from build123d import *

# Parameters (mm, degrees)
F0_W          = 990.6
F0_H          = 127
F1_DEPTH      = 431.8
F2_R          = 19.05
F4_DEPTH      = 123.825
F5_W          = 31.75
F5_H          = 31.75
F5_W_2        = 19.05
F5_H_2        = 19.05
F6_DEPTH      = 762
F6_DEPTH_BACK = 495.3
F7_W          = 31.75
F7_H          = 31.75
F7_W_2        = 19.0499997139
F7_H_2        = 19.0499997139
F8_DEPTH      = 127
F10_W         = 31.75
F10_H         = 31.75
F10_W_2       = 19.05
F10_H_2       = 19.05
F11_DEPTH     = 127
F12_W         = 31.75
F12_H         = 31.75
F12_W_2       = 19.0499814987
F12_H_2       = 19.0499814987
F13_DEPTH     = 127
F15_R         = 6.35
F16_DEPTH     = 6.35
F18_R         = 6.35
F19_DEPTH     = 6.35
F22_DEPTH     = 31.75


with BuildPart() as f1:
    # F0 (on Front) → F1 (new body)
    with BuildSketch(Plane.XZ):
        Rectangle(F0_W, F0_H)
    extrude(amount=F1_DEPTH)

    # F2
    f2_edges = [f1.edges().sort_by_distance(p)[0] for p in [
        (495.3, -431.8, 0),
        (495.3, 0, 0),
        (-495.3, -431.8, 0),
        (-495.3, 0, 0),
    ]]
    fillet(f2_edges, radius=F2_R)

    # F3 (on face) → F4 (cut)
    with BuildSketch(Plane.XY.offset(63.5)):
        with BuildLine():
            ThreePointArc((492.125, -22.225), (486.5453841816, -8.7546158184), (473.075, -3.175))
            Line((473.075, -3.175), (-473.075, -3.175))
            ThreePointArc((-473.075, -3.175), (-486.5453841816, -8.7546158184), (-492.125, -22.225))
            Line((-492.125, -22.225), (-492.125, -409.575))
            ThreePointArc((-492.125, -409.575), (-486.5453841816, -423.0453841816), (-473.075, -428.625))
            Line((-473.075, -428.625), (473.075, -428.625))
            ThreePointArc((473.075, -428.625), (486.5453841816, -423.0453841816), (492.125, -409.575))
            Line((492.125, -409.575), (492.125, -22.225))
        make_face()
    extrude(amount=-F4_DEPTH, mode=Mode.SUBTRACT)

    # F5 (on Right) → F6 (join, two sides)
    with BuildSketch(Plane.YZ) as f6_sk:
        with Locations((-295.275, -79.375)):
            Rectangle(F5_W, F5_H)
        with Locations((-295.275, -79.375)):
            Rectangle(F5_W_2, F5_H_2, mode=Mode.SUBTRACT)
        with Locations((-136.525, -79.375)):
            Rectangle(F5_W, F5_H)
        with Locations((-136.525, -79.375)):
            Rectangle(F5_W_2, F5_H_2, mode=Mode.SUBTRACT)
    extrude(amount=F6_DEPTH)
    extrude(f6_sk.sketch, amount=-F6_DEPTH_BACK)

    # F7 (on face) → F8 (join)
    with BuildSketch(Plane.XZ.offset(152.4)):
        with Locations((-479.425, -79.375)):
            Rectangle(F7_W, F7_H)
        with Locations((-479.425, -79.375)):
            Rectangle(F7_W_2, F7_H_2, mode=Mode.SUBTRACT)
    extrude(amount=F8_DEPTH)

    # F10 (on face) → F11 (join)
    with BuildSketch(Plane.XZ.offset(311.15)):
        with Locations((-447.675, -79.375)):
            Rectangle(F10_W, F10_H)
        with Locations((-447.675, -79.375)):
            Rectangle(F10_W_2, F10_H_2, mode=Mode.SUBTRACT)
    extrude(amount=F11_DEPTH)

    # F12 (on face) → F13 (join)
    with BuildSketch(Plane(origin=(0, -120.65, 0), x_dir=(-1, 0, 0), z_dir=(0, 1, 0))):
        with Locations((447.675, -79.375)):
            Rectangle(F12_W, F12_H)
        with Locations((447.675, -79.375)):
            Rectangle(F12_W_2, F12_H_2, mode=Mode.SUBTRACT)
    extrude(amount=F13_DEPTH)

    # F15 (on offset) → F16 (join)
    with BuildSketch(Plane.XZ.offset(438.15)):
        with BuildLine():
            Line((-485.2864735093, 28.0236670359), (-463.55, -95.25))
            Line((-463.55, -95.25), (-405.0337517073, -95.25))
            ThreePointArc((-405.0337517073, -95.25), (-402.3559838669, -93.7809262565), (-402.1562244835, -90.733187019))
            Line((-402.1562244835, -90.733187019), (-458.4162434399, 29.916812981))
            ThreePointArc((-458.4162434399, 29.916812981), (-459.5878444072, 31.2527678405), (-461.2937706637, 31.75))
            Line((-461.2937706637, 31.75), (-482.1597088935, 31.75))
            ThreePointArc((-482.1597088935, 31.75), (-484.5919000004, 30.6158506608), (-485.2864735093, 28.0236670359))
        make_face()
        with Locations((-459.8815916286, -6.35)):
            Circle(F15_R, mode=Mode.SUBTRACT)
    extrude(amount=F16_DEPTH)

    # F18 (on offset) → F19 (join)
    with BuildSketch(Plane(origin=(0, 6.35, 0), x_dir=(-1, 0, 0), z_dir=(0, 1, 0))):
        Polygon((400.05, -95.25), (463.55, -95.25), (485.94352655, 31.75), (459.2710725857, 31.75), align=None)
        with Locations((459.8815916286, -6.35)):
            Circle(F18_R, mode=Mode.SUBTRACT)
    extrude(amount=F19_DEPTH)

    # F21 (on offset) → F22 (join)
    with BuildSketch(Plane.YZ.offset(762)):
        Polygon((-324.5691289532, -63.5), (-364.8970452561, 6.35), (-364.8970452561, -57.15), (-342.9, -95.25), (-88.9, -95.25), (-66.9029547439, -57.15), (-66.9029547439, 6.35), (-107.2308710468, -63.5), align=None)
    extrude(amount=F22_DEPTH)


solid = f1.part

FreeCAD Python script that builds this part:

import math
import FreeCAD as App
import Part
import Sketcher

V = App.Vector
Q = App.Units.Quantity


def edges_at(feature, points):
    """Names of the edges that pass closest to the given points."""
    edges = feature.Shape.Edges
    near = lambda p: min(range(len(edges)), key=lambda i: edges[i].distToShape(Part.Vertex(*p))[0])
    return sorted({f"Edge{near(p) + 1}" for p in points})

doc = App.newDocument("Part")
params = doc.addObject("Spreadsheet::Sheet", "Params")
for row, (alias, value) in enumerate([
    ("sketch1_width", "39 in"),
    ("sketch1_height", "5 in"),
    ("pad1_length", "17 in"),
    ("fillet_radius", "0.75 in"),
    ("sketch2_radius", "0.75 in"),
    ("pocket1_length", "4.875 in"),
    ("sketch3_width", "1.25 in"),
    ("pad2_length", "30 in"),
    ("pad2_length2", "19.5 in"),
    ("sketch4_width", "1.25 in"),
    ("pad3_length", "5 in"),
    ("sketch5_width", "1.25 in"),
    ("pad4_length", "5 in"),
    ("sketch6_width", "1.25 in"),
    ("pad5_length", "5 in"),
    ("sketch7_diameter", "0.5 in"),
    ("sketch7_radius", "0.125 in"),
    ("pad6_length", "0.25 in"),
    ("sketch8_diameter", "0.5 in"),
    ("sketch8_width", "2.5 in"),
    ("pad7_length", "0.25 in"),
    ("sketch9_width", "10 in"),
    ("sketch9_height", "2.5 in"),
    ("pad8_length", "1.25 in"),
], start=1):
    params.set(f"A{row}", alias)
    params.set(f"B{row}", "=" + value)
    params.setAlias(f"B{row}", alias)

body = doc.addObject("PartDesign::Body", "Body")

sketch1 = body.newObject("Sketcher::SketchObject", "Sketch")
sketch1.AttachmentSupport = (doc.getObject("XZ_Plane"), [""])
sketch1.MapMode = "FlatFace"
sketch1.addGeometry([
    Part.LineSegment(V(-495, 64, 0), V(-495, -64, 0)),
    Part.LineSegment(V(-495, -64, 0), V(495, -64, 0)),
    Part.LineSegment(V(495, -64, 0), V(495, 64, 0)),
    Part.LineSegment(V(495, 64, 0), V(-495, 64, 0)),
], False)
sketch1.addConstraint([
    Sketcher.Constraint("Coincident", 0, 2, 1, 1),
    Sketcher.Constraint("Coincident", 1, 2, 2, 1),
    Sketcher.Constraint("Coincident", 2, 2, 3, 1),
    Sketcher.Constraint("Coincident", 3, 2, 0, 1),
    Sketcher.Constraint("Vertical", 0),
    Sketcher.Constraint("Horizontal", 1),
    Sketcher.Constraint("Vertical", 2),
    Sketcher.Constraint("Horizontal", 3),
    Sketcher.Constraint("Symmetric", 0, 2, 2, 2, -1, 1),
    Sketcher.Constraint("DistanceX", 1, 1, 1, 2, Q("39 in")),
    Sketcher.Constraint("DistanceY", 0, 2, 0, 1, Q("5 in")),
])
sketch1.setExpression("Constraints[9]", "Params.sketch1_width")
sketch1.setExpression("Constraints[10]", "Params.sketch1_height")
pad1 = body.newObject("PartDesign::Pad", "Pad")
pad1.Profile = sketch1
pad1.setExpression("Length", "Params.pad1_length")
doc.recompute()

fillet = body.newObject("PartDesign::Fillet", "Fillet")
fillet.Base = (pad1, edges_at(pad1, [
    (495.3, -431.8, 0),
    (495.3, 0, 0),
    (-495.3, -431.8, 0),
    (-495.3, 0, 0),
]))
fillet.setExpression("Radius", "Params.fillet_radius")

sketch2 = body.newObject("Sketcher::SketchObject", "Sketch001")
sketch2.AttachmentSupport = (doc.getObject("XY_Plane"), [""])
sketch2.MapMode = "FlatFace"
sketch2.AttachmentOffset = App.Placement(V(0, 0, 2.5 * 25.4), App.Rotation())
sketch2.addGeometry([
    Part.ArcOfCircle(Part.Circle(V(473, -22, 0), V(0, 0, 1), 19), math.radians(0), math.radians(90)),
    Part.LineSegment(V(473, -3, 0), V(-473, -3, 0)),
    Part.ArcOfCircle(Part.Circle(V(-473, -22, 0), V(0, 0, 1), 19), math.radians(90), math.radians(180)),
    Part.LineSegment(V(-492, -22, 0), V(-492, -410, 0)),
    Part.ArcOfCircle(Part.Circle(V(-473, -410, 0), V(0, 0, 1), 19), math.radians(180), math.radians(270)),
    Part.LineSegment(V(-473, -429, 0), V(473, -429, 0)),
    Part.ArcOfCircle(Part.Circle(V(473, -410, 0), V(0, 0, 1), 19), math.radians(-90), math.radians(0)),
    Part.LineSegment(V(492, -410, 0), V(492, -22, 0)),
], False)
sketch2.addConstraint([
    Sketcher.Constraint("Tangent", 0, 2, 1, 1),
    Sketcher.Constraint("Tangent", 1, 2, 2, 1),
    Sketcher.Constraint("Tangent", 2, 2, 3, 1),
    Sketcher.Constraint("Tangent", 3, 2, 4, 1),
    Sketcher.Constraint("Tangent", 4, 2, 5, 1),
    Sketcher.Constraint("Tangent", 5, 2, 6, 1),
    Sketcher.Constraint("Tangent", 6, 2, 7, 1),
    Sketcher.Constraint("Tangent", 7, 2, 0, 1),
    Sketcher.Constraint("Horizontal", 1),
    Sketcher.Constraint("Vertical", 3),
    Sketcher.Constraint("Horizontal", 5),
    Sketcher.Constraint("Vertical", 7),
    Sketcher.Constraint("Equal", 0, 2),
    Sketcher.Constraint("Equal", 2, 4),
    Sketcher.Constraint("Equal", 4, 6),
    Sketcher.Constraint("Radius", 0, Q("0.75 in")),
    Sketcher.Constraint("DistanceY", 6, 3, 0, 2, Q("16 in")),
    Sketcher.Constraint("DistanceX", 2, 2, 0, 3, Q("38 in")),
    Sketcher.Constraint("DistanceX", -1, 1, 0, 3, Q("18.625 in")),
    Sketcher.Constraint("DistanceY", 0, 3, -1, 1, Q("0.875 in")),
])
sketch2.setExpression("Constraints[15]", "Params.sketch2_radius")
pocket1 = body.newObject("PartDesign::Pocket", "Pocket")
pocket1.Profile = sketch2
pocket1.setExpression("Length", "Params.pocket1_length")

sketch3 = body.newObject("Sketcher::SketchObject", "Sketch002")
sketch3.AttachmentSupport = (doc.getObject("YZ_Plane"), [""])
sketch3.MapMode = "FlatFace"
sketch3.addGeometry([
    Part.LineSegment(V(-311, -64, 0), V(-311, -95, 0)),
    Part.LineSegment(V(-311, -95, 0), V(-279, -95, 0)),
    Part.LineSegment(V(-279, -95, 0), V(-279, -64, 0)),
    Part.LineSegment(V(-279, -64, 0), V(-311, -64, 0)),
    Part.LineSegment(V(-286, -89, 0), V(-305, -89, 0)),
    Part.LineSegment(V(-305, -89, 0), V(-305, -70, 0)),
    Part.LineSegment(V(-305, -70, 0), V(-286, -70, 0)),
    Part.LineSegment(V(-286, -70, 0), V(-286, -89, 0)),
    Part.LineSegment(V(-152, -64, 0), V(-152, -95, 0)),
    Part.LineSegment(V(-152, -95, 0), V(-121, -95, 0)),
    Part.LineSegment(V(-121, -95, 0), V(-121, -64, 0)),
    Part.LineSegment(V(-121, -64, 0), V(-152, -64, 0)),
    Part.LineSegment(V(-127, -89, 0), V(-146, -89, 0)),
    Part.LineSegment(V(-146, -89, 0), V(-146, -70, 0)),
    Part.LineSegment(V(-146, -70, 0), V(-127, -70, 0)),
    Part.LineSegment(V(-127, -70, 0), V(-127, -89, 0)),
], False)
sketch3.addConstraint([
    Sketcher.Constraint("Coincident", 0, 2, 1, 1),
    Sketcher.Constraint("Coincident", 1, 2, 2, 1),
    Sketcher.Constraint("Coincident", 2, 2, 3, 1),
    Sketcher.Constraint("Coincident", 3, 2, 0, 1),
    Sketcher.Constraint("Coincident", 4, 2, 5, 1),
    Sketcher.Constraint("Coincident", 5, 2, 6, 1),
    Sketcher.Constraint("Coincident", 6, 2, 7, 1),
    Sketcher.Constraint("Coincident", 7, 2, 4, 1),
    Sketcher.Constraint("Coincident", 8, 2, 9, 1),
    Sketcher.Constraint("Coincident", 9, 2, 10, 1),
    Sketcher.Constraint("Coincident", 10, 2, 11, 1),
    Sketcher.Constraint("Coincident", 11, 2, 8, 1),
    Sketcher.Constraint("Coincident", 12, 2, 13, 1),
    Sketcher.Constraint("Coincident", 13, 2, 14, 1),
    Sketcher.Constraint("Coincident", 14, 2, 15, 1),
    Sketcher.Constraint("Coincident", 15, 2, 12, 1),
    Sketcher.Constraint("Vertical", 0),
    Sketcher.Constraint("Horizontal", 1),
    Sketcher.Constraint("Vertical", 2),
    Sketcher.Constraint("Horizontal", 3),
    Sketcher.Constraint("Horizontal", 4),
    Sketcher.Constraint("Vertical", 5),
    Sketcher.Constraint("Horizontal", 6),
    Sketcher.Constraint("Vertical", 7),
    Sketcher.Constraint("Vertical", 8),
    Sketcher.Constraint("Horizontal", 9),
    Sketcher.Constraint("Vertical", 10),
    Sketcher.Constraint("Horizontal", 11),
    Sketcher.Constraint("Horizontal", 12),
    Sketcher.Constraint("Vertical", 13),
    Sketcher.Constraint("Horizontal", 14),
    Sketcher.Constraint("Vertical", 15),
    Sketcher.Constraint("Horizontal", 1, 2, 8, 2),
    Sketcher.Constraint("Horizontal", 3, 2, 10, 2),
    Sketcher.Constraint("Horizontal", 7, 2, 12, 2),
    Sketcher.Constraint("Horizontal", 6, 2, 13, 2),
    Sketcher.Constraint("Equal", 3, 9),
    Sketcher.Constraint("Equal", 6, 12),
    Sketcher.Constraint("Equal", 11, 0),
    Sketcher.Constraint("Equal", 14, 5),
    Sketcher.Constraint("DistanceX", 1, 2, -1, 1, Q("11 in")),
    Sketcher.Constraint("DistanceX", 4, 2, -1, 1, Q("12 in")),
    Sketcher.Constraint("DistanceX", 8, 2, -1, 1, Q("6 in")),
    Sketcher.Constraint("DistanceX", 14, 2, -1, 1, Q("5 in")),
    Sketcher.Constraint("DistanceY", 4, 2, 3, 2, Q("1 in")),
    Sketcher.Constraint("DistanceY", 0, 2, 5, 2, Q("1 in")),
    Sketcher.Constraint("DistanceX", 1, 1, 1, 2, Q("1.25 in")),
    Sketcher.Constraint("DistanceY", 2, 2, -1, 1, Q("2.5 in")),
])
sketch3.setExpression("Constraints[46]", "Params.sketch3_width")
pad2 = body.newObject("PartDesign::Pad", "Pad001")
pad2.Profile = sketch3
pad2.Type = "TwoLengths"
pad2.setExpression("Length", "Params.pad2_length")
pad2.setExpression("Length2", "Params.pad2_length2")

sketch4 = body.newObject("Sketcher::SketchObject", "Sketch003")
sketch4.AttachmentSupport = (doc.getObject("XZ_Plane"), [""])
sketch4.MapMode = "FlatFace"
sketch4.AttachmentOffset = App.Placement(V(0, 0, 6 * 25.4), App.Rotation())
sketch4.addGeometry([
    Part.LineSegment(V(-495, -64, 0), V(-495, -95, 0)),
    Part.LineSegment(V(-495, -95, 0), V(-464, -95, 0)),
    Part.LineSegment(V(-464, -95, 0), V(-464, -64, 0)),
    Part.LineSegment(V(-464, -64, 0), V(-495, -64, 0)),
    Part.LineSegment(V(-470, -89, 0), V(-489, -89, 0)),
    Part.LineSegment(V(-489, -89, 0), V(-489, -70, 0)),
    Part.LineSegment(V(-489, -70, 0), V(-470, -70, 0)),
    Part.LineSegment(V(-470, -70, 0), V(-470, -89, 0)),
], False)
sketch4.addConstraint([
    Sketcher.Constraint("Coincident", 0, 2, 1, 1),
    Sketcher.Constraint("Coincident", 1, 2, 2, 1),
    Sketcher.Constraint("Coincident", 2, 2, 3, 1),
    Sketcher.Constraint("Coincident", 3, 2, 0, 1),
    Sketcher.Constraint("Coincident", 4, 2, 5, 1),
    Sketcher.Constraint("Coincident", 5, 2, 6, 1),
    Sketcher.Constraint("Coincident", 6, 2, 7, 1),
    Sketcher.Constraint("Coincident", 7, 2, 4, 1),
    Sketcher.Constraint("Vertical", 0),
    Sketcher.Constraint("Horizontal", 1),
    Sketcher.Constraint("Vertical", 2),
    Sketcher.Constraint("Horizontal", 3),
    Sketcher.Constraint("Horizontal", 4),
    Sketcher.Constraint("Vertical", 5),
    Sketcher.Constraint("Horizontal", 6),
    Sketcher.Constraint("Vertical", 7),
    Sketcher.Constraint("Equal", 3, 0),
    Sketcher.Constraint("Equal", 6, 5),
    Sketcher.Constraint("DistanceY", 4, 2, 3, 2, Q("1 in")),
    Sketcher.Constraint("DistanceX", 4, 2, 1, 2, Q("1 in")),
    Sketcher.Constraint("DistanceY", 0, 2, 5, 2, Q("1 in")),
    Sketcher.Constraint("DistanceX", 1, 1, 1, 2, Q("1.25 in")),
    Sketcher.Constraint("DistanceX", 0, 2, -1, 1, Q("19.5 in")),
    Sketcher.Constraint("DistanceY", 2, 2, -1, 1, Q("2.5 in")),
])
sketch4.setExpression("Constraints[21]", "Params.sketch4_width")
pad3 = body.newObject("PartDesign::Pad", "Pad002")
pad3.Profile = sketch4
pad3.setExpression("Length", "Params.pad3_length")

sketch5 = body.newObject("Sketcher::SketchObject", "Sketch004")
sketch5.AttachmentSupport = (doc.getObject("XZ_Plane"), [""])
sketch5.MapMode = "FlatFace"
sketch5.AttachmentOffset = App.Placement(V(0, 0, 12.25 * 25.4), App.Rotation())
sketch5.addGeometry([
    Part.LineSegment(V(-464, -64, 0), V(-464, -95, 0)),
    Part.LineSegment(V(-464, -95, 0), V(-432, -95, 0)),
    Part.LineSegment(V(-432, -95, 0), V(-432, -64, 0)),
    Part.LineSegment(V(-432, -64, 0), V(-464, -64, 0)),
    Part.LineSegment(V(-438, -89, 0), V(-457, -89, 0)),
    Part.LineSegment(V(-457, -89, 0), V(-457, -70, 0)),
    Part.LineSegment(V(-457, -70, 0), V(-438, -70, 0)),
    Part.LineSegment(V(-438, -70, 0), V(-438, -89, 0)),
], False)
sketch5.addConstraint([
    Sketcher.Constraint("Coincident", 0, 2, 1, 1),
    Sketcher.Constraint("Coincident", 1, 2, 2, 1),
    Sketcher.Constraint("Coincident", 2, 2, 3, 1),
    Sketcher.Constraint("Coincident", 3, 2, 0, 1),
    Sketcher.Constraint("Coincident", 4, 2, 5, 1),
    Sketcher.Constraint("Coincident", 5, 2, 6, 1),
    Sketcher.Constraint("Coincident", 6, 2, 7, 1),
    Sketcher.Constraint("Coincident", 7, 2, 4, 1),
    Sketcher.Constraint("Vertical", 0),
    Sketcher.Constraint("Horizontal", 1),
    Sketcher.Constraint("Vertical", 2),
    Sketcher.Constraint("Horizontal", 3),
    Sketcher.Constraint("Horizontal", 4),
    Sketcher.Constraint("Vertical", 5),
    Sketcher.Constraint("Horizontal", 6),
    Sketcher.Constraint("Vertical", 7),
    Sketcher.Constraint("Equal", 3, 0),
    Sketcher.Constraint("Equal", 6, 5),
    Sketcher.Constraint("DistanceX", 1, 2, -1, 1, Q("17 in")),
    Sketcher.Constraint("DistanceX", 4, 2, -1, 1, Q("18 in")),
    Sketcher.Constraint("DistanceY", 4, 2, 3, 2, Q("1 in")),
    Sketcher.Constraint("DistanceY", 0, 2, 5, 2, Q("1 in")),
    Sketcher.Constraint("DistanceX", 1, 1, 1, 2, Q("1.25 in")),
    Sketcher.Constraint("DistanceY", 2, 2, -1, 1, Q("2.5 in")),
])
sketch5.setExpression("Constraints[22]", "Params.sketch5_width")
pad4 = body.newObject("PartDesign::Pad", "Pad003")
pad4.Profile = sketch5
pad4.setExpression("Length", "Params.pad4_length")

sketch6 = body.newObject("Sketcher::SketchObject", "Sketch005")
sketch6.AttachmentSupport = (doc.getObject("XZ_Plane"), [""])
sketch6.MapMode = "FlatFace"
sketch6.AttachmentOffset = App.Placement(V(0, 0, 4.75 * 25.4), App.Rotation())
sketch6.addGeometry([
    Part.LineSegment(V(-432, -64, 0), V(-432, -95, 0)),
    Part.LineSegment(V(-432, -95, 0), V(-464, -95, 0)),
    Part.LineSegment(V(-464, -95, 0), V(-464, -64, 0)),
    Part.LineSegment(V(-464, -64, 0), V(-432, -64, 0)),
    Part.LineSegment(V(-457, -89, 0), V(-438, -89, 0)),
    Part.LineSegment(V(-438, -89, 0), V(-438, -70, 0)),
    Part.LineSegment(V(-438, -70, 0), V(-457, -70, 0)),
    Part.LineSegment(V(-457, -70, 0), V(-457, -89, 0)),
], False)
sketch6.addConstraint([
    Sketcher.Constraint("Coincident", 0, 2, 1, 1),
    Sketcher.Constraint("Coincident", 1, 2, 2, 1),
    Sketcher.Constraint("Coincident", 2, 2, 3, 1),
    Sketcher.Constraint("Coincident", 3, 2, 0, 1),
    Sketcher.Constraint("Coincident", 4, 2, 5, 1),
    Sketcher.Constraint("Coincident", 5, 2, 6, 1),
    Sketcher.Constraint("Coincident", 6, 2, 7, 1),
    Sketcher.Constraint("Coincident", 7, 2, 4, 1),
    Sketcher.Constraint("Vertical", 0),
    Sketcher.Constraint("Horizontal", 1),
    Sketcher.Constraint("Vertical", 2),
    Sketcher.Constraint("Horizontal", 3),
    Sketcher.Constraint("Horizontal", 4),
    Sketcher.Constraint("Vertical", 5),
    Sketcher.Constraint("Horizontal", 6),
    Sketcher.Constraint("Vertical", 7),
    Sketcher.Constraint("Equal", 3, 0),
    Sketcher.Constraint("Equal", 6, 5),
    Sketcher.Constraint("DistanceX", 0, 2, -1, 1, Q("17 in")),
    Sketcher.Constraint("DistanceX", 1, 2, 1, 1, Q("1.25 in")),
    Sketcher.Constraint("DistanceY", 2, 2, -1, 1, Q("2.5 in")),
    Sketcher.Constraint("DistanceX", 4, 1, 4, 2, 19.049981),
    Sketcher.Constraint("DistanceX", 4, 2, -1, 1, 438.150009),
    Sketcher.Constraint("DistanceY", 4, 2, -1, 1, 88.899991),
])
sketch6.setExpression("Constraints[19]", "Params.sketch6_width")
pad5 = body.newObject("PartDesign::Pad", "Pad004")
pad5.Profile = sketch6
pad5.setExpression("Length", "Params.pad5_length")
pad5.Reversed = True

sketch7 = body.newObject("Sketcher::SketchObject", "Sketch006")
sketch7.AttachmentSupport = (doc.getObject("XZ_Plane"), [""])
sketch7.MapMode = "FlatFace"
sketch7.AttachmentOffset = App.Placement(V(0, 0, 17.25 * 25.4), App.Rotation())
sketch7.addGeometry([
    Part.LineSegment(V(-485.3, 28, 0), V(-463.6, -95.2, 0)),
    Part.LineSegment(V(-463.6, -95.2, 0), V(-405, -95.2, 0)),
    Part.ArcOfCircle(Part.Circle(V(-405, -92.1, 0), V(0, 0, 1), 3.2), math.radians(-90), math.radians(25)),
    Part.LineSegment(V(-402.2, -90.7, 0), V(-458.4, 29.9, 0)),
    Part.ArcOfCircle(Part.Circle(V(-461.3, 28.6, 0), V(0, 0, 1), 3.2), math.radians(25), math.radians(90)),
    Part.LineSegment(V(-461.3, 31.8, 0), V(-482.2, 31.8, 0)),
    Part.ArcOfCircle(Part.Circle(V(-482.2, 28.6, 0), V(0, 0, 1), 3.2), math.radians(90), math.radians(190)),
    Part.Circle(V(-459.9, -6.3, 0), V(0, 0, 1), 6.3),
], False)
sketch7.addConstraint([
    Sketcher.Constraint("Coincident", 0, 2, 1, 1),
    Sketcher.Constraint("Tangent", 1, 2, 2, 1),
    Sketcher.Constraint("Tangent", 2, 2, 3, 1),
    Sketcher.Constraint("Tangent", 3, 2, 4, 1),
    Sketcher.Constraint("Tangent", 4, 2, 5, 1),
    Sketcher.Constraint("Tangent", 5, 2, 6, 1),
    Sketcher.Constraint("Tangent", 6, 2, 0, 1),
    Sketcher.Constraint("Horizontal", 1),
    Sketcher.Constraint("Horizontal", 5),
    Sketcher.Constraint("Equal", 2, 4),
    Sketcher.Constraint("Equal", 4, 6),
    Sketcher.Constraint("Diameter", 7, Q("0.5 in")),
    Sketcher.Constraint("Angle", 0, Q("-80 deg")),
    Sketcher.Constraint("Angle", 3, Q("115 deg")),
    Sketcher.Constraint("Radius", 2, Q("0.125 in")),
    Sketcher.Constraint("DistanceY", 0, 2, 4, 2, Q("5 in")),
    Sketcher.Constraint("DistanceY", 0, 2, 7, 3, Q("3.5 in")),
    Sketcher.Constraint("DistanceY", 7, 3, -1, 1, Q("0.25 in")),
    Sketcher.Constraint("DistanceX", 0, 2, -1, 1, Q("18.25 in")),
    Sketcher.Constraint("DistanceX", 1, 1, 1, 2, 58.516248),
    Sketcher.Constraint("DistanceX", 7, 3, -1, 1, 459.881592),
])
sketch7.setExpression("Constraints[11]", "Params.sketch7_diameter")
sketch7.setExpression("Constraints[14]", "Params.sketch7_radius")
pad6 = body.newObject("PartDesign::Pad", "Pad005")
pad6.Profile = sketch7
pad6.setExpression("Length", "Params.pad6_length")

sketch8 = body.newObject("Sketcher::SketchObject", "Sketch007")
sketch8.AttachmentSupport = (doc.getObject("XZ_Plane"), [""])
sketch8.MapMode = "FlatFace"
sketch8.AttachmentOffset = App.Placement(V(0, 0, -0.25 * 25.4), App.Rotation())
sketch8.addGeometry([
    Part.LineSegment(V(-400, -95, 0), V(-464, -95, 0)),
    Part.LineSegment(V(-464, -95, 0), V(-486, 32, 0)),
    Part.LineSegment(V(-486, 32, 0), V(-459, 32, 0)),
    Part.LineSegment(V(-459, 32, 0), V(-400, -95, 0)),
    Part.Circle(V(-460, -6, 0), V(0, 0, 1), 6),
], False)
sketch8.addConstraint([
    Sketcher.Constraint("Coincident", 0, 2, 1, 1),
    Sketcher.Constraint("Coincident", 1, 2, 2, 1),
    Sketcher.Constraint("Coincident", 2, 2, 3, 1),
    Sketcher.Constraint("Coincident", 3, 2, 0, 1),
    Sketcher.Constraint("Horizontal", 0),
    Sketcher.Constraint("Horizontal", 2),
    Sketcher.Constraint("Diameter", 4, Q("0.5 in")),
    Sketcher.Constraint("DistanceX", 0, 2, 0, 1, Q("2.5 in")),
    Sketcher.Constraint("Angle", 1, Q("100 deg")),
    Sketcher.Constraint("Angle", 3, Q("-65 deg")),
    Sketcher.Constraint("DistanceY", 0, 2, 1, 2, Q("5 in")),
    Sketcher.Constraint("DistanceY", 0, 2, 4, 3, Q("3.5 in")),
    Sketcher.Constraint("DistanceY", 4, 3, -1, 1, Q("0.25 in")),
    Sketcher.Constraint("DistanceX", 0, 2, -1, 1, Q("18.25 in")),
    Sketcher.Constraint("DistanceX", 4, 3, -1, 1, 459.881592),
])
sketch8.setExpression("Constraints[6]", "Params.sketch8_diameter")
sketch8.setExpression("Constraints[7]", "Params.sketch8_width")
pad7 = body.newObject("PartDesign::Pad", "Pad006")
pad7.Profile = sketch8
pad7.setExpression("Length", "Params.pad7_length")
pad7.Reversed = True

sketch9 = body.newObject("Sketcher::SketchObject", "Sketch008")
sketch9.AttachmentSupport = (doc.getObject("YZ_Plane"), [""])
sketch9.MapMode = "FlatFace"
sketch9.AttachmentOffset = App.Placement(V(0, 0, 30 * 25.4), App.Rotation())
sketch9.addGeometry([
    Part.LineSegment(V(-325, -64, 0), V(-365, 6, 0)),
    Part.LineSegment(V(-365, 6, 0), V(-365, -57, 0)),
    Part.LineSegment(V(-365, -57, 0), V(-343, -95, 0)),
    Part.LineSegment(V(-343, -95, 0), V(-89, -95, 0)),
    Part.LineSegment(V(-89, -95, 0), V(-67, -57, 0)),
    Part.LineSegment(V(-67, -57, 0), V(-67, 6, 0)),
    Part.LineSegment(V(-67, 6, 0), V(-107, -64, 0)),
    Part.LineSegment(V(-107, -64, 0), V(-325, -64, 0)),
], False)
sketch9.addConstraint([
    Sketcher.Constraint("Coincident", 0, 2, 1, 1),
    Sketcher.Constraint("Coincident", 1, 2, 2, 1),
    Sketcher.Constraint("Coincident", 2, 2, 3, 1),
    Sketcher.Constraint("Coincident", 3, 2, 4, 1),
    Sketcher.Constraint("Coincident", 4, 2, 5, 1),
    Sketcher.Constraint("Coincident", 5, 2, 6, 1),
    Sketcher.Constraint("Coincident", 6, 2, 7, 1),
    Sketcher.Constraint("Coincident", 7, 2, 0, 1),
    Sketcher.Constraint("Vertical", 1),
    Sketcher.Constraint("Horizontal", 3),
    Sketcher.Constraint("Vertical", 5),
    Sketcher.Constraint("Horizontal", 7),
    Sketcher.Constraint("Parallel", 0, 2),
    Sketcher.Constraint("Parallel", 4, 6),
    Sketcher.Constraint("Horizontal", 1, 2, 4, 2),
    Sketcher.Constraint("Horizontal", 0, 2, 5, 2),
    Sketcher.Constraint("Equal", 2, 4),
    Sketcher.Constraint("DistanceX", 3, 1, 3, 2, Q("10 in")),
    Sketcher.Constraint("DistanceY", 1, 2, 1, 1, Q("2.5 in")),
    Sketcher.Constraint("Angle", 0, Q("120 deg")),
    Sketcher.Constraint("DistanceY", 2, 2, 0, 2, Q("4 in")),
    Sketcher.Constraint("DistanceX", 2, 2, -1, 1, Q("13.5 in")),
    Sketcher.Constraint("DistanceY", 6, 2, -1, 1, Q("2.5 in")),
    Sketcher.Constraint("DistanceY", -1, 1, 0, 2, Q("0.25 in")),
])
sketch9.setExpression("Constraints[17]", "Params.sketch9_width")
sketch9.setExpression("Constraints[18]", "Params.sketch9_height")
pad8 = body.newObject("PartDesign::Pad", "Pad007")
pad8.Profile = sketch9
pad8.setExpression("Length", "Params.pad8_length")

doc.recompute()
